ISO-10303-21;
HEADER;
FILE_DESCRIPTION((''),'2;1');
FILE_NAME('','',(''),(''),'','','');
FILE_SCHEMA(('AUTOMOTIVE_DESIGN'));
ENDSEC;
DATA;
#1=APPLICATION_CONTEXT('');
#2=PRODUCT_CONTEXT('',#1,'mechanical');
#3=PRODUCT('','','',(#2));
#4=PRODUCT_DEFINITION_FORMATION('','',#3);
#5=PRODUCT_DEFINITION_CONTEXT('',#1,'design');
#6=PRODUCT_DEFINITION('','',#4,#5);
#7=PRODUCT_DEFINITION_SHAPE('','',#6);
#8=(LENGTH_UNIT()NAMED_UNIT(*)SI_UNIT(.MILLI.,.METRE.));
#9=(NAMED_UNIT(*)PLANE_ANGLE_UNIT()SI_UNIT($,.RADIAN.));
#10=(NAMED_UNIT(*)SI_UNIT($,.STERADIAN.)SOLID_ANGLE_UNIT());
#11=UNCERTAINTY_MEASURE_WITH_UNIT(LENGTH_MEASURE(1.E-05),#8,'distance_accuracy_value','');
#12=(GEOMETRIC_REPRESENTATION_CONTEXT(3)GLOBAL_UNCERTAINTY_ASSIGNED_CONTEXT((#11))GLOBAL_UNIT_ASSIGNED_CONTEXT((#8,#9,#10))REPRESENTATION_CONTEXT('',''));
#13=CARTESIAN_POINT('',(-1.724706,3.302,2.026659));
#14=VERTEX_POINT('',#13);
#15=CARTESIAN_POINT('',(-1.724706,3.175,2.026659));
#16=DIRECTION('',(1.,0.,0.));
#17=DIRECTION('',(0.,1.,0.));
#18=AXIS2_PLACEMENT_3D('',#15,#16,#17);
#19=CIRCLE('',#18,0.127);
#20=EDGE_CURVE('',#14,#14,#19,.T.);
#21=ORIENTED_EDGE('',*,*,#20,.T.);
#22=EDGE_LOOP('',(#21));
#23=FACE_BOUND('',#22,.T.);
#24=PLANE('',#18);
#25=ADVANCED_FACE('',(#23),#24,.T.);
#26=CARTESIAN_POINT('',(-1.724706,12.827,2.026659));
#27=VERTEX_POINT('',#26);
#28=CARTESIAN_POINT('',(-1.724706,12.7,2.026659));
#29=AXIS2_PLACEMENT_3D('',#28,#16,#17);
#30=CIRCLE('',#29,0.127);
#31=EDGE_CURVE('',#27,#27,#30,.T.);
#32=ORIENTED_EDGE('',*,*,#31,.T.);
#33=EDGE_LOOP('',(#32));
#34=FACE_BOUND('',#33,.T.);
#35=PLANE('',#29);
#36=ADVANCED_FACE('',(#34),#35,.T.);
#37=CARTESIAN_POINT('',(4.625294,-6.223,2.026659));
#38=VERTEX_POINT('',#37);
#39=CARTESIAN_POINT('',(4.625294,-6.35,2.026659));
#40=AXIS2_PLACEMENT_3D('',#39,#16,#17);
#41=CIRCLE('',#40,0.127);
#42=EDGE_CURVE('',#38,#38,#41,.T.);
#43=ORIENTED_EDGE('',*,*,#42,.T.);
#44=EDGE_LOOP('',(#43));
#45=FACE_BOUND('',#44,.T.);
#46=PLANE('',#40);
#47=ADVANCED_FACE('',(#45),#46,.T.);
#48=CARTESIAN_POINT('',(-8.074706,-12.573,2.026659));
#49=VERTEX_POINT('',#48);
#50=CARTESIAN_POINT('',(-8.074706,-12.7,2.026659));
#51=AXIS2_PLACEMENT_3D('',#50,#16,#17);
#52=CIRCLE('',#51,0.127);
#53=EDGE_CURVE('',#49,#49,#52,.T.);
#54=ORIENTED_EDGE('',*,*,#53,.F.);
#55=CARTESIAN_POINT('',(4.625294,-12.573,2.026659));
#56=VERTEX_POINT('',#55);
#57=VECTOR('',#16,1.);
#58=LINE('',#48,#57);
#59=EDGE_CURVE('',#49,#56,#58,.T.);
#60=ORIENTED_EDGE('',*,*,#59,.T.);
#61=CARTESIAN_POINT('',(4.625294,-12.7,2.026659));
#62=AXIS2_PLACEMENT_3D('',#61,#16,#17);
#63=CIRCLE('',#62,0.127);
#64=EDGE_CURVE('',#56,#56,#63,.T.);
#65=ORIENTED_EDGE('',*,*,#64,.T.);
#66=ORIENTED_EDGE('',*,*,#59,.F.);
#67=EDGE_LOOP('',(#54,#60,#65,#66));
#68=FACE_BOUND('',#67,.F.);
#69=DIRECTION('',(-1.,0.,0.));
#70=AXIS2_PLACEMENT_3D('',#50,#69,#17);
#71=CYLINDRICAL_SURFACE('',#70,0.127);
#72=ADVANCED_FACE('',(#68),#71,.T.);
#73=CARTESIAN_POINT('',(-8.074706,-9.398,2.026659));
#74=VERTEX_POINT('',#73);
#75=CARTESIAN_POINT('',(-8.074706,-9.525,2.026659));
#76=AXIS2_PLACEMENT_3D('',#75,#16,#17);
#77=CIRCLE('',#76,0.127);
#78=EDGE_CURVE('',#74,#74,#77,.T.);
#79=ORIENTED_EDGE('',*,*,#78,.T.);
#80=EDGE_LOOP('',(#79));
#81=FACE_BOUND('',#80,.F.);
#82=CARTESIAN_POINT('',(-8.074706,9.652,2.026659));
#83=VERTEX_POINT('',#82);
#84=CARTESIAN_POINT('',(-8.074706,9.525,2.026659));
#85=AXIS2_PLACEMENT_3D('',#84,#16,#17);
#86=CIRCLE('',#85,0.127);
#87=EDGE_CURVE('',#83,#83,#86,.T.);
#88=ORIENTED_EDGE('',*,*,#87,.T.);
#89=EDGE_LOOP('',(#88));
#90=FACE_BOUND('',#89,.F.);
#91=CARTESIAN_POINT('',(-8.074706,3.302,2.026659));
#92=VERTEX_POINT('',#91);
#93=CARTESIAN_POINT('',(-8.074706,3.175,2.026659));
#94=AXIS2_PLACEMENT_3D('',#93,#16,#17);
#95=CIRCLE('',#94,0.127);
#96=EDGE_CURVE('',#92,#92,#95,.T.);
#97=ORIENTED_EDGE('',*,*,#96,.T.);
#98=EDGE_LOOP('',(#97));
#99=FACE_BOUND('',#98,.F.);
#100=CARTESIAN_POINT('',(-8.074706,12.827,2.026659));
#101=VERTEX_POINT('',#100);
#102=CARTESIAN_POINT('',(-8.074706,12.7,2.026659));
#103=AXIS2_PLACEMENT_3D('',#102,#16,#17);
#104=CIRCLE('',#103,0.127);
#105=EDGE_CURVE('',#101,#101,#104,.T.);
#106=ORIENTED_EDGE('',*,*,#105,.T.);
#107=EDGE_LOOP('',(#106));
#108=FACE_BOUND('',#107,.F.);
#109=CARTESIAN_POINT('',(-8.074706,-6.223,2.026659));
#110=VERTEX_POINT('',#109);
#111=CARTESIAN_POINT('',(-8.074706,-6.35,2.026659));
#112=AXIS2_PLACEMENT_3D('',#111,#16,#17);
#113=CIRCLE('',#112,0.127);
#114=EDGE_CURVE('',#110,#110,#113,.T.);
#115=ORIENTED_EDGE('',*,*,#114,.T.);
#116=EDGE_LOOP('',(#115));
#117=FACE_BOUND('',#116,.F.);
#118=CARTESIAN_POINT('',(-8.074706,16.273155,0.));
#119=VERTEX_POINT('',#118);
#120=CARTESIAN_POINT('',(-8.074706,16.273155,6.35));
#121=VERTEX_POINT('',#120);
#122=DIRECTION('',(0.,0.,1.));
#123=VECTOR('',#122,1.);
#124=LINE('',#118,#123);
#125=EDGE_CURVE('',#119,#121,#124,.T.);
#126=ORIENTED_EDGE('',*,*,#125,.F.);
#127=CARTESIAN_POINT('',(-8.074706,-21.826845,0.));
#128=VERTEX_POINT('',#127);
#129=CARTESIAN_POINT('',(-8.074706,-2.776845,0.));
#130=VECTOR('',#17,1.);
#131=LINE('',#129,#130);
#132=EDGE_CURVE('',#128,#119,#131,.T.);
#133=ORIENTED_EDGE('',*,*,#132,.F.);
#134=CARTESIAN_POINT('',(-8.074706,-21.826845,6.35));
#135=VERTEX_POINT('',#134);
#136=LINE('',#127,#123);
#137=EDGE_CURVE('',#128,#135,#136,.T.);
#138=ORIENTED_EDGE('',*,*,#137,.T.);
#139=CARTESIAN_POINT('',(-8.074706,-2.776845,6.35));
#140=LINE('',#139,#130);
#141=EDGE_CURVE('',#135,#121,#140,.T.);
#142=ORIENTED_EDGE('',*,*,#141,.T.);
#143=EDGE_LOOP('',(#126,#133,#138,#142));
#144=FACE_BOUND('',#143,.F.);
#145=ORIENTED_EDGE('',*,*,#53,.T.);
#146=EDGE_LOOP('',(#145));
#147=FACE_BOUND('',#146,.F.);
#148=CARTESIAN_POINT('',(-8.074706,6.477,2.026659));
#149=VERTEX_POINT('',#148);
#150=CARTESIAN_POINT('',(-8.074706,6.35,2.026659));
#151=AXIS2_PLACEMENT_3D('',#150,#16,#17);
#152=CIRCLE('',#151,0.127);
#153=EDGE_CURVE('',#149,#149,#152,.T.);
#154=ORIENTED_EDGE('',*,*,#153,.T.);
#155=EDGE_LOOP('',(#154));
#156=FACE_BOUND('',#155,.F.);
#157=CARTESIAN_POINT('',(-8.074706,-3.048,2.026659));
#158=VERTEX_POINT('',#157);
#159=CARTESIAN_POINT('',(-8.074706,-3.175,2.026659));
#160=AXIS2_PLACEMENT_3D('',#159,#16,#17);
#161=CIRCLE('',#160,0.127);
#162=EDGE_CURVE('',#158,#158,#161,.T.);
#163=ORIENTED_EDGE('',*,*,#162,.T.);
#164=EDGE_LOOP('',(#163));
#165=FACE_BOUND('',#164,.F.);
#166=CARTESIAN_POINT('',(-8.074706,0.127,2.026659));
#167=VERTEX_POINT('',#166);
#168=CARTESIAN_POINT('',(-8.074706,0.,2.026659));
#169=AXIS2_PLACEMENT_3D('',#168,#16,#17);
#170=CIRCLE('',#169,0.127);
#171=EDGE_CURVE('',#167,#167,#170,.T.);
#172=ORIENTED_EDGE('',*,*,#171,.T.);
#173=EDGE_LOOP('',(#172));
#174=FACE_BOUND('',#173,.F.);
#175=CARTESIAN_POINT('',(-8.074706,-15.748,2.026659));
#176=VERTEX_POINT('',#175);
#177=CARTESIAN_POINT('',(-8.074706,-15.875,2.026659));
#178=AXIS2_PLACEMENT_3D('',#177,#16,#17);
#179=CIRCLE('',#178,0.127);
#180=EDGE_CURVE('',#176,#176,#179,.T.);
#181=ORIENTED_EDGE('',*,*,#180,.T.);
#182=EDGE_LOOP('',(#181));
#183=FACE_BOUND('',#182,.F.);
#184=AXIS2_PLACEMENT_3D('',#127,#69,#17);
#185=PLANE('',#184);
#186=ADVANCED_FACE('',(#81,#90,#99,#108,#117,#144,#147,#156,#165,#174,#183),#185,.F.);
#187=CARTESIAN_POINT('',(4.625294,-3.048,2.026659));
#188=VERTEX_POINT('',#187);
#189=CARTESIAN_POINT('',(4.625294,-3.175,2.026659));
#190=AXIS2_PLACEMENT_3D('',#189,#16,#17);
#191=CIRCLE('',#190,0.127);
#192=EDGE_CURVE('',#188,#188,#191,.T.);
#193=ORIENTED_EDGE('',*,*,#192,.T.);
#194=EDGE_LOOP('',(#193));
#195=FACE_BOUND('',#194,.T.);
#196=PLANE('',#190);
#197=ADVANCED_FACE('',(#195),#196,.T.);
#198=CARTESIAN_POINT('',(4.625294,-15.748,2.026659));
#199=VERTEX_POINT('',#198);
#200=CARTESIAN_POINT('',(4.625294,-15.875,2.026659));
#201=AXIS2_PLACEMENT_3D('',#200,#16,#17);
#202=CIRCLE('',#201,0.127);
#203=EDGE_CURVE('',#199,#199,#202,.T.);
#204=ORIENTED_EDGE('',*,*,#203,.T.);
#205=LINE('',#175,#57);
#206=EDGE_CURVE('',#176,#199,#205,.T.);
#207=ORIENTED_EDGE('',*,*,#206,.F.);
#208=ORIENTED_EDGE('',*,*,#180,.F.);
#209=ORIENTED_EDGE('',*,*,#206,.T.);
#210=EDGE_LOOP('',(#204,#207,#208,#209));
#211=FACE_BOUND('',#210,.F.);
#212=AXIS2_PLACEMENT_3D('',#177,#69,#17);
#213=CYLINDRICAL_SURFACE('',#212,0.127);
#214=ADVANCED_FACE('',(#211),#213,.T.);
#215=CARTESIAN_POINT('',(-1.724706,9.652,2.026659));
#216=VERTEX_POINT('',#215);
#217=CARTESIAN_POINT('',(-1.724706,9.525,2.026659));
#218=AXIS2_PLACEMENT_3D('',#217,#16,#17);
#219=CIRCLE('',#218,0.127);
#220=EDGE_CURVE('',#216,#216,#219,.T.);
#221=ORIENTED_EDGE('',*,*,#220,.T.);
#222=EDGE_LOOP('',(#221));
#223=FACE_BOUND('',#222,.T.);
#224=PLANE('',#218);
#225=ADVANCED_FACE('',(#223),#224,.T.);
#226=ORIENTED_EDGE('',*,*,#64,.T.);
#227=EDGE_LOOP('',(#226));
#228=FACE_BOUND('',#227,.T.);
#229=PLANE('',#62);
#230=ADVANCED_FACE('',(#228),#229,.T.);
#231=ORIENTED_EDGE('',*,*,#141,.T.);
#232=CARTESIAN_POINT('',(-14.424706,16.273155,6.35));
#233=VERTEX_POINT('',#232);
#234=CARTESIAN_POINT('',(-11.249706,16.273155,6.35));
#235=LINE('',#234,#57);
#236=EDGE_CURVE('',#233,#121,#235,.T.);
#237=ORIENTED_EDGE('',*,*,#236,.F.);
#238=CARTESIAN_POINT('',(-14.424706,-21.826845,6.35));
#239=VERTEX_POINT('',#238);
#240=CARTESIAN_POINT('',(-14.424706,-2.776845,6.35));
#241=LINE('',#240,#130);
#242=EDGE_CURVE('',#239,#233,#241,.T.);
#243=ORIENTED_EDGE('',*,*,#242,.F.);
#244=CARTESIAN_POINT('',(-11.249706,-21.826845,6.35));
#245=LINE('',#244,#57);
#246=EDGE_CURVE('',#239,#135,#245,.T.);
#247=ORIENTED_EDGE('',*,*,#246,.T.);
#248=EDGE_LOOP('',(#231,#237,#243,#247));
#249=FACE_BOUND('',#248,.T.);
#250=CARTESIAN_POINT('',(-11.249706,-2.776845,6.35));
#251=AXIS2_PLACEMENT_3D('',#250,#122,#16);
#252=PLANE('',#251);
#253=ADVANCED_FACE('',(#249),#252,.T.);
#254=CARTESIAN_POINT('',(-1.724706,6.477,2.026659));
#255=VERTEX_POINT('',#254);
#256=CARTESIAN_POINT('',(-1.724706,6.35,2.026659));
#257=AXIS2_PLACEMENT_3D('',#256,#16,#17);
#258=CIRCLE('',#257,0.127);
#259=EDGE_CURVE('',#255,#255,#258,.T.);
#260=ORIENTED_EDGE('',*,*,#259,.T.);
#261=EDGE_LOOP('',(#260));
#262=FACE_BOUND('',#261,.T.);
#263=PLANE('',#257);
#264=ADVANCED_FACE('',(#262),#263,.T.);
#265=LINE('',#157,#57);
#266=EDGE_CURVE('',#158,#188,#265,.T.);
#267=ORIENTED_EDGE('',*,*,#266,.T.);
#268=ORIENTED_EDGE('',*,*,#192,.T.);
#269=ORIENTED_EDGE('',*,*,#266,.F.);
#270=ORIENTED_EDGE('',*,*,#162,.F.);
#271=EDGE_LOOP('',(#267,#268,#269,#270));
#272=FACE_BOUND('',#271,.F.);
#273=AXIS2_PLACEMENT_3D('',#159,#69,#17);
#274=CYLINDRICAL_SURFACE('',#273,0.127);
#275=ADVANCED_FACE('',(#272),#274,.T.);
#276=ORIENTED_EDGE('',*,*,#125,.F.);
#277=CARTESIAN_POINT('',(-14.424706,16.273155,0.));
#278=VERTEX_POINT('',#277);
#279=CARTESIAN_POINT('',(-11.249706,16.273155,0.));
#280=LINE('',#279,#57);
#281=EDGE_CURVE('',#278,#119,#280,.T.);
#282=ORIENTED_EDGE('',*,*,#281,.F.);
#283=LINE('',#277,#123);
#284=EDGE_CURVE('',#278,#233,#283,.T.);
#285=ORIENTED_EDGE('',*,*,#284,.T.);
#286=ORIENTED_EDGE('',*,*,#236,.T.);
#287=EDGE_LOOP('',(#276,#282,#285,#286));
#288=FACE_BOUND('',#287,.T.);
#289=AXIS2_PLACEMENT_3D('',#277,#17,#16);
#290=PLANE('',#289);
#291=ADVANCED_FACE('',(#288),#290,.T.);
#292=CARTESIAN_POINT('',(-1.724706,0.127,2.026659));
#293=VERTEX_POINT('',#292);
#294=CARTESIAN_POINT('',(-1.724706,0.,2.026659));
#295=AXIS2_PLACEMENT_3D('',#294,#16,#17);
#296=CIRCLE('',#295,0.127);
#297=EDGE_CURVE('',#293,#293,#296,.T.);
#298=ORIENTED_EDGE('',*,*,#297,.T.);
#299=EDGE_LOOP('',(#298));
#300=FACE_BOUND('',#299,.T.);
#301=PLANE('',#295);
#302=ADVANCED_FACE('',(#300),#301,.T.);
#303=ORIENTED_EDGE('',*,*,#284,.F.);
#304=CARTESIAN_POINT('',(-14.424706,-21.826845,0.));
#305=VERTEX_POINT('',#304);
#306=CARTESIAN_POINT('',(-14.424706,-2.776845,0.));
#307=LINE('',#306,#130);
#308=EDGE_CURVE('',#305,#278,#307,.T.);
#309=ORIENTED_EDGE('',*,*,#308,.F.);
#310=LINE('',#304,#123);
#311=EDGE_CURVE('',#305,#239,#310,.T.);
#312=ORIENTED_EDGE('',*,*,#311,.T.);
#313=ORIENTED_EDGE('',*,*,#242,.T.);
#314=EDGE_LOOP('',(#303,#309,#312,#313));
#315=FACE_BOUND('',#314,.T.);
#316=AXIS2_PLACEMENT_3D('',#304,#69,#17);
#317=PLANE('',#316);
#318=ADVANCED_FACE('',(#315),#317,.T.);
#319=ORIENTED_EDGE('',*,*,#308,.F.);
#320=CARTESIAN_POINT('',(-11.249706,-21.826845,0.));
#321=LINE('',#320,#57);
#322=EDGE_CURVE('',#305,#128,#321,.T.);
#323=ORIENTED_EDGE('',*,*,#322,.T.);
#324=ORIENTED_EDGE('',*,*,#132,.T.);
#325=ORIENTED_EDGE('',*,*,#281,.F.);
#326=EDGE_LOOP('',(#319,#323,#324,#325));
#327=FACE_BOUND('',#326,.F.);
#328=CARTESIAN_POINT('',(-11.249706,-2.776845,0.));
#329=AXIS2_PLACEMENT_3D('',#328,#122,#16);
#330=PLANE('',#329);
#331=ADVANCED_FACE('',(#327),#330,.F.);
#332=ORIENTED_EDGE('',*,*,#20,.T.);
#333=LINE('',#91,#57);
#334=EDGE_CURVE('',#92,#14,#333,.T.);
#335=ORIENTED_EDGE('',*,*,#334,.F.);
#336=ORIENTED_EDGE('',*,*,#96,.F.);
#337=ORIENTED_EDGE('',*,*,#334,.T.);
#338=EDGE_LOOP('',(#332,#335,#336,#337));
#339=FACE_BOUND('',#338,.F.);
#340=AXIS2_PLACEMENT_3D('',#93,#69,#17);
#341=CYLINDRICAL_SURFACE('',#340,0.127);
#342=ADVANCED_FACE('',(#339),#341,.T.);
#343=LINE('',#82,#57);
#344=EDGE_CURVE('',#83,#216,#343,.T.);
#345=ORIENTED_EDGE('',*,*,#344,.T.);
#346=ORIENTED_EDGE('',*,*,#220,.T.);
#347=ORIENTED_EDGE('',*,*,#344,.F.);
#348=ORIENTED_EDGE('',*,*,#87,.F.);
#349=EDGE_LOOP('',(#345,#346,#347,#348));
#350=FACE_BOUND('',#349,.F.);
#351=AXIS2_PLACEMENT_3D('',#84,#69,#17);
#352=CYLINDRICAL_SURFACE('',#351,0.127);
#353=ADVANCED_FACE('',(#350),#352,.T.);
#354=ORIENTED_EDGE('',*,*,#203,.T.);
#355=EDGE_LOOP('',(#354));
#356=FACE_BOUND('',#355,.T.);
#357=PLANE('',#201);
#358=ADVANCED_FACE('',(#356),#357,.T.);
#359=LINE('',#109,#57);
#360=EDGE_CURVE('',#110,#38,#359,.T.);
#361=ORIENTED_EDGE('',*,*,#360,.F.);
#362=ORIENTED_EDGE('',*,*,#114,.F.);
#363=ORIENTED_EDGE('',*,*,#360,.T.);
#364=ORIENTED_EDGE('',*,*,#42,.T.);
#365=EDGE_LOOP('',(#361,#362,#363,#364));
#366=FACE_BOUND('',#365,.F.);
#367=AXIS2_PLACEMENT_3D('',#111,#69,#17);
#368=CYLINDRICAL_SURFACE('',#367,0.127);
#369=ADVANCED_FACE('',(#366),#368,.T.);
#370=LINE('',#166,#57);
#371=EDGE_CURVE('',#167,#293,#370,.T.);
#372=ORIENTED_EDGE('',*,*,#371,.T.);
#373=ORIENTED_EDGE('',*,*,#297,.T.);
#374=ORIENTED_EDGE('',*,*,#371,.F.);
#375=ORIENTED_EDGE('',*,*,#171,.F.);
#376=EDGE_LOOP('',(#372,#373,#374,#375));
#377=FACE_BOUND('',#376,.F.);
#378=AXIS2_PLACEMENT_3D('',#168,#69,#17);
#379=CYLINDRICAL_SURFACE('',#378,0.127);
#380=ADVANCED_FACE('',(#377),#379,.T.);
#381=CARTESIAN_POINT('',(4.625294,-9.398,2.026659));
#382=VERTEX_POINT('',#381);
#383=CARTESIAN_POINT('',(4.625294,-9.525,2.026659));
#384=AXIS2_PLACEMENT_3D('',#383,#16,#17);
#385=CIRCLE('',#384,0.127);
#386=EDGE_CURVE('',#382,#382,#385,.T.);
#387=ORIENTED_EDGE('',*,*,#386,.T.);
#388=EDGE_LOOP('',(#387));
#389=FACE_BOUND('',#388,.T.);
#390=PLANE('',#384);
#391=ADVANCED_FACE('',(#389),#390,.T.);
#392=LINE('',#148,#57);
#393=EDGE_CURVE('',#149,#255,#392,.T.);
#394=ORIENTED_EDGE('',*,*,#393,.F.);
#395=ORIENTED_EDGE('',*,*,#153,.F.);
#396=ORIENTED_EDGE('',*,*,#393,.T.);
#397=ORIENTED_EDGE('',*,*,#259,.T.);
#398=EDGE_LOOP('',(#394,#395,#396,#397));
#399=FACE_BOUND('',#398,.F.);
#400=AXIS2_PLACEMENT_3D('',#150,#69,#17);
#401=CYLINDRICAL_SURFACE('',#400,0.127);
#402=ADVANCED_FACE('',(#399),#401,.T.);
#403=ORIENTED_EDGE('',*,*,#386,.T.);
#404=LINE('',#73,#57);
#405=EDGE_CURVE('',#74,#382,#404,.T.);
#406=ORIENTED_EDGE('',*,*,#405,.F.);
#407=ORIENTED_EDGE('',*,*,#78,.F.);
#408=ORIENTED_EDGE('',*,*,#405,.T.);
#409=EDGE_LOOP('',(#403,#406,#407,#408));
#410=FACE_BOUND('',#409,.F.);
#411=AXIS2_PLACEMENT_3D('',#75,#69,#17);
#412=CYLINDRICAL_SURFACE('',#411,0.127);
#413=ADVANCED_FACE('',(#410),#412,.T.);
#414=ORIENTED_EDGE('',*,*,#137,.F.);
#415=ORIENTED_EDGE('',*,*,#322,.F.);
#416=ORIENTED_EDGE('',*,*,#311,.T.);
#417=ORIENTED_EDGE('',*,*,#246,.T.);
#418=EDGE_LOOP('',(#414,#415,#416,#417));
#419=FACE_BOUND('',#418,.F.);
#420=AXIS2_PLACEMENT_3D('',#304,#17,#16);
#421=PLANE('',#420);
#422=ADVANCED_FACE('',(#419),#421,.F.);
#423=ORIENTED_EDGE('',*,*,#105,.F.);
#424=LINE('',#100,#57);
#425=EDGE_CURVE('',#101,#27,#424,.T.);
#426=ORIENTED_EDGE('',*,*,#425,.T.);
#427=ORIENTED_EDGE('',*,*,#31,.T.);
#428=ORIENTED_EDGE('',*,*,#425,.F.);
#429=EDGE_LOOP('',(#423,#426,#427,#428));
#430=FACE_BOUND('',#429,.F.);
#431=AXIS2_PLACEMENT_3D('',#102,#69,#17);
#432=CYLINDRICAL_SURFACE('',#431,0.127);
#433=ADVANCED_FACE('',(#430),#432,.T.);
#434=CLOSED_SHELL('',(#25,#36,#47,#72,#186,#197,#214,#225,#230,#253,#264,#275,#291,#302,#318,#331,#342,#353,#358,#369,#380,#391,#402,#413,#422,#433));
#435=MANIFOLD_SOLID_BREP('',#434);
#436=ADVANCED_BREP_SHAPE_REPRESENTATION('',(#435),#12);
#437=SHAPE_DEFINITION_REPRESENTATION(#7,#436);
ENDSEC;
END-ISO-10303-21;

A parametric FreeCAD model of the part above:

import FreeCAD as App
import Part
import Sketcher

V = App.Vector
Q = App.Units.Quantity


def add_polygon(sketch, points):
    """Adds a closed chain of lines whose ends are joined by coincident constraints."""
    first, n = sketch.GeometryCount, len(points)
    for a, b in zip(points, points[1:] + points[:1]):
        sketch.addGeometry(Part.LineSegment(App.Vector(*a, 0), App.Vector(*b, 0)), False)
    for i in range(n):
        sketch.addConstraint(Sketcher.Constraint("Coincident", first + i, 2, first + (i + 1) % n, 1))

doc = App.newDocument("Part")
body = doc.addObject("PartDesign::Body", "Body")

sketch1 = body.newObject("Sketcher::SketchObject", "Sketch")
sketch1.AttachmentSupport = (doc.getObject("XY_Plane"), [""])
sketch1.MapMode = "FlatFace"
add_polygon(sketch1, [(-14, 16), (-14, -22), (-8, -22), (-8, 16)])
sketch1.addConstraint([
    Sketcher.Constraint("Vertical", 0),
    Sketcher.Constraint("Horizontal", 1),
    Sketcher.Constraint("Vertical", 2),
    Sketcher.Constraint("Horizontal", 3),
    Sketcher.Constraint("DistanceY", 0, 2, 0, 1, Q("1.5 in")),
    Sketcher.Constraint("DistanceX", 1, 1, 1, 2, Q("0.25 in")),
    Sketcher.Constraint("DistanceX", 0, 2, -1, 1, Q("14.424706 mm")),
    Sketcher.Constraint("DistanceY", 0, 2, -1, 1, Q("21.826845 mm")),
])
pad1 = body.newObject("PartDesign::Pad", "Pad")
pad1.Profile = sketch1
pad1.Length = Q("0.25 in")

sketch2 = body.newObject("Sketcher::SketchObject", "Sketch001")
sketch2.AttachmentSupport = (doc.getObject("YZ_Plane"), [""])
sketch2.MapMode = "FlatFace"
sketch2.AttachmentOffset = App.Placement(V(0, 0, -8.074706), App.Rotation())
sketch2.addGeometry([
    Part.Circle(V(-3.17, 2.03, 0), V(0, 0, 1), 0.13),
    Part.Circle(V(-6.35, 2.03, 0), V(0, 0, 1), 0.13),
    Part.Circle(V(-9.53, 2.03, 0), V(0, 0, 1), 0.13),
    Part.Circle(V(-12.7, 2.03, 0), V(0, 0, 1), 0.13),
    Part.Circle(V(-15.88, 2.03, 0), V(0, 0, 1), 0.13),
], False)
sketch2.addConstraint([
    Sketcher.Constraint("Equal", 0, 1),
    Sketcher.Constraint("Equal", 1, 2),
    Sketcher.Constraint("Equal", 2, 3),
    Sketcher.Constraint("Equal", 3, 4),
    Sketcher.Constraint("Horizontal", 0, 3, 1, 3),
    Sketcher.Constraint("Horizontal", 1, 3, 2, 3),
    Sketcher.Constraint("Horizontal", 2, 3, 3, 3),
    Sketcher.Constraint("Horizontal", 3, 3, 4, 3),
    Sketcher.Constraint("Diameter", 0, Q("0.01 in")),
    Sketcher.Constraint("DistanceX", 3, 3, -1, 1, Q("0.5 in")),
    Sketcher.Constraint("DistanceX", 4, 3, 0, 3, Q("0.5 in")),
    Sketcher.Constraint("DistanceX", 1, 3, -1, 1, Q("0.25 in")),
    Sketcher.Constraint("DistanceX", 2, 3, 0, 3, Q("0.25 in")),
    Sketcher.Constraint("DistanceX", 0, 3, -1, 1, Q("0.125 in")),
    Sketcher.Constraint("DistanceY", -1, 1, 0, 3, Q("2.026659 mm")),
])
pad2 = body.newObject("PartDesign::Pad", "Pad001")
pad2.Profile = sketch2
pad2.Length = Q("0.5 in")

sketch3 = body.newObject("Sketcher::SketchObject", "Sketch002")
sketch3.AttachmentSupport = (doc.getObject("YZ_Plane"), [""])
sketch3.MapMode = "FlatFace"
sketch3.AttachmentOffset = App.Placement(V(0, 0, -8.074706), App.Rotation())
sketch3.addGeometry([
    Part.Circle(V(12.7, 2.03, 0), V(0, 0, 1), 0.13),
    Part.Circle(V(9.53, 2.03, 0), V(0, 0, 1), 0.13),
    Part.Circle(V(6.35, 2.03, 0), V(0, 0, 1), 0.13),
    Part.Circle(V(3.17, 2.03, 0), V(0, 0, 1), 0.13),
    Part.Circle(V(0, 2.03, 0), V(0, 0, 1), 0.13),
], False)
sketch3.addConstraint([
    Sketcher.Constraint("Equal", 0, 1),
    Sketcher.Constraint("Equal", 1, 2),
    Sketcher.Constraint("Equal", 2, 3),
    Sketcher.Constraint("Equal", 3, 4),
    Sketcher.Constraint("PointOnObject", 4, 3, -2),
    Sketcher.Constraint("Horizontal", 0, 3, 1, 3),
    Sketcher.Constraint("Horizontal", 1, 3, 2, 3),
    Sketcher.Constraint("Horizontal", 2, 3, 3, 3),
    Sketcher.Constraint("Horizontal", 3, 3, 4, 3),
    Sketcher.Constraint("Diameter", 0, Q("0.01 in")),
    Sketcher.Constraint("DistanceX", -1, 1, 0, 3, Q("0.5 in")),
    Sketcher.Constraint("DistanceX", -1, 1, 2, 3, Q("0.25 in")),
    Sketcher.Constraint("DistanceX", 3, 3, 1, 3, Q("0.25 in")),
    Sketcher.Constraint("DistanceX", -1, 1, 1, 3, Q("0.375 in")),
    Sketcher.Constraint("DistanceY", -1, 1, 0, 3, Q("2.026659 mm")),
])
pad3 = body.newObject("PartDesign::Pad", "Pad002")
pad3.Profile = sketch3
pad3.Length = Q("0.25 in")

doc.recompute()
